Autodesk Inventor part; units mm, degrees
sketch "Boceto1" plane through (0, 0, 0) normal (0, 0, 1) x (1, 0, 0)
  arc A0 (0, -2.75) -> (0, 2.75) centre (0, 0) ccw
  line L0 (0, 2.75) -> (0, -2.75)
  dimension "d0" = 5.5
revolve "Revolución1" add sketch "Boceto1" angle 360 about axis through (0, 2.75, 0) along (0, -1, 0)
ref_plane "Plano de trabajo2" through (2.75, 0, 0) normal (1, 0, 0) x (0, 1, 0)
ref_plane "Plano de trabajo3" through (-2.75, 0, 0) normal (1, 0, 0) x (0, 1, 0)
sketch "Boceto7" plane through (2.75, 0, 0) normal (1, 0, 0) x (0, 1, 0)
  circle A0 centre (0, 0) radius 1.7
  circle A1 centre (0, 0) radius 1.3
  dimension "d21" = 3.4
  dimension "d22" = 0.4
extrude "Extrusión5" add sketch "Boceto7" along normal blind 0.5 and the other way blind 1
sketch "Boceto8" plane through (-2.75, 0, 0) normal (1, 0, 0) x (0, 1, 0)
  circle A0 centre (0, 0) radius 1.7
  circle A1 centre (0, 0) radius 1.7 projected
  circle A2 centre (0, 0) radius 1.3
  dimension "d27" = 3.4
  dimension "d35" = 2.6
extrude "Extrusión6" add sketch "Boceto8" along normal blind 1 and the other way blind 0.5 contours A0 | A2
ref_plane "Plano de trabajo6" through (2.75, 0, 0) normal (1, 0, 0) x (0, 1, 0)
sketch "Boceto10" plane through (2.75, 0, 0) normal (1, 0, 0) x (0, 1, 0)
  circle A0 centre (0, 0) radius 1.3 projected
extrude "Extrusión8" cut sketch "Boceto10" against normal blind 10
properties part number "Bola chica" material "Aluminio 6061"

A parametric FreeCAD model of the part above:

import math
import FreeCAD as App
import Part
import Sketcher
from FreeCAD import Vector
Q = App.Units.Quantity

doc = App.newDocument("Part")
body = doc.addObject("PartDesign::Body", "Body")

# Sketch on XY plane
sketch1 = doc.addObject("Sketcher::SketchObject", "Sketch")
body.addObject(sketch1)
sketch1.AttachmentSupport = (doc.XY_Plane, [""])
sketch1.MapMode = "FlatFace"
sketch1.addGeometry([
    Part.LineSegment(Vector(0, 2.75, 0), Vector(0, -2.75, 0)),
    Part.ArcOfCircle(Part.Circle(Vector(0, 0, 0), Vector(0, 0, 1), 2.75), math.radians(-90), math.radians(90)),
], False)
sketch1.addConstraint([
    Sketcher.Constraint("Coincident", 0, 1, 1, 2),
    Sketcher.Constraint("Coincident", 1, 1, 0, 2),
    Sketcher.Constraint("Vertical", 0),
    Sketcher.Constraint("Coincident", 1, 3, -1, 1),
    Sketcher.Constraint("PointOnObject", 0, 1, -2),
    Sketcher.Constraint("Radius", 1, Q("2.75 mm")),
])
revolution = doc.addObject("PartDesign::Revolution", "Revolution")
body.addObject(revolution)
revolution.Profile = sketch1
revolution.ReferenceAxis = (sketch1, ["V_Axis"])
revolution.Angle = 360

# Sketch on YZ plane
sketch2 = doc.addObject("Sketcher::SketchObject", "Sketch001")
body.addObject(sketch2)
sketch2.AttachmentSupport = (doc.YZ_Plane, [""])
sketch2.MapMode = "FlatFace"
sketch2.AttachmentOffset = App.Placement(Vector(0, 0, 2.75), App.Rotation())
sketch2.addGeometry([
    Part.Circle(Vector(0, 0, 0), Vector(0, 0, 1), 1.7),
    Part.Circle(Vector(0, 0, 0), Vector(0, 0, 1), 1.3),
], False)
sketch2.addConstraint([
    Sketcher.Constraint("Coincident", 0, 3, -1, 1),
    Sketcher.Constraint("Coincident", 1, 3, -1, 1),
    Sketcher.Constraint("Diameter", 0, Q("3.4 mm")),
    Sketcher.Constraint("Diameter", 1, Q("2.6 mm")),
])
pad1 = doc.addObject("PartDesign::Pad", "Pad")
body.addObject(pad1)
pad1.Profile = sketch2
pad1.Type = "TwoLengths"
pad1.Length = 0.5
pad1.Length2 = 1

# Sketch on YZ plane
sketch3 = doc.addObject("Sketcher::SketchObject", "Sketch002")
body.addObject(sketch3)
sketch3.AttachmentSupport = (doc.YZ_Plane, [""])
sketch3.MapMode = "FlatFace"
sketch3.AttachmentOffset = App.Placement(Vector(0, 0, -2.75), App.Rotation())
sketch3.addGeometry(Part.Circle(Vector(0, 0, 0), Vector(0, 0, 1), 1.7), False)
sketch3.addConstraint([
    Sketcher.Constraint("Coincident", 0, 3, -1, 1),
    Sketcher.Constraint("Diameter", 0, Q("3.4 mm")),
])
pad2 = doc.addObject("PartDesign::Pad", "Pad001")
body.addObject(pad2)
pad2.Profile = sketch3
pad2.Type = "TwoLengths"
pad2.Length = 1
pad2.Length2 = 0.5

# Sketch on YZ plane
sketch4 = doc.addObject("Sketcher::SketchObject", "Sketch003")
body.addObject(sketch4)
sketch4.AttachmentSupport = (doc.YZ_Plane, [""])
sketch4.MapMode = "FlatFace"
sketch4.AttachmentOffset = App.Placement(Vector(0, 0, 2.75), App.Rotation())
sketch4.addGeometry(Part.Circle(Vector(0, 0, 0), Vector(0, 0, 1), 1.3), False)
sketch4.addConstraint([
    Sketcher.Constraint("Coincident", 0, 3, -1, 1),
    Sketcher.Constraint("Diameter", 0, Q("2.6 mm")),
])
pocket1 = doc.addObject("PartDesign::Pocket", "Pocket")
body.addObject(pocket1)
pocket1.Profile = sketch4
pocket1.Length = 10

doc.recompute()
